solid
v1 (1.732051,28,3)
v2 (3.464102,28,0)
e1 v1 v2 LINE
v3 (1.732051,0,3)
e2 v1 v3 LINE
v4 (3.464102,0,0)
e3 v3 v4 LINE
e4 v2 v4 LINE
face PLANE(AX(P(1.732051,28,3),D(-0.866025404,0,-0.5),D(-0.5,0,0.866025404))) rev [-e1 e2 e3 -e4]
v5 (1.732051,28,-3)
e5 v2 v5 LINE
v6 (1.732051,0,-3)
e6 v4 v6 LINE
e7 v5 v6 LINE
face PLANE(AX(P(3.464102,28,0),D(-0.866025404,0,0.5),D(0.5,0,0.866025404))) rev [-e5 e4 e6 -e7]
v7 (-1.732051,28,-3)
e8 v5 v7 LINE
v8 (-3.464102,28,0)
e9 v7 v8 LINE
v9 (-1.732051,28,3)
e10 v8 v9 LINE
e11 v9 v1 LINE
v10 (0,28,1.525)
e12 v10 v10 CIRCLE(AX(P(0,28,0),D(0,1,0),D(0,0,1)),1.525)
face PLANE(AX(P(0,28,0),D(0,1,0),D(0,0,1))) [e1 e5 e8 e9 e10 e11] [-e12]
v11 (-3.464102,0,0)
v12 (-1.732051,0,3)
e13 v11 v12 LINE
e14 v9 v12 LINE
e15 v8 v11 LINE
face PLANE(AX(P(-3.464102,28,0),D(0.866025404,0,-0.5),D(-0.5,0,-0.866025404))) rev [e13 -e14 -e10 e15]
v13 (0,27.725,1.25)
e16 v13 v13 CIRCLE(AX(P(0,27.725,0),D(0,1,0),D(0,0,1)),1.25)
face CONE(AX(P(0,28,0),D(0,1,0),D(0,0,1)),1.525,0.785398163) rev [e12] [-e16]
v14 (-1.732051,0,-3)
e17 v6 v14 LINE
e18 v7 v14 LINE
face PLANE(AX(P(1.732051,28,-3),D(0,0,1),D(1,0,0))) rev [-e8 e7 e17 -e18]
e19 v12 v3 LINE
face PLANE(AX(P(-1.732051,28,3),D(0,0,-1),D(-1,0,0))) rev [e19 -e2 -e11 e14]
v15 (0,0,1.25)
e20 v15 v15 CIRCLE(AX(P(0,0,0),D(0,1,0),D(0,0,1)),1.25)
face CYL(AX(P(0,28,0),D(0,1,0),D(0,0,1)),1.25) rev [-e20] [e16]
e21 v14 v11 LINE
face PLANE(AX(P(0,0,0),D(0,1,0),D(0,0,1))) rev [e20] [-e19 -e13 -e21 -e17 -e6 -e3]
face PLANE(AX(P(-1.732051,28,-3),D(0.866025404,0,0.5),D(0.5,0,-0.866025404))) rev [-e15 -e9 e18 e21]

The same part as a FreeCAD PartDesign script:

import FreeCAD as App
import Part
import Sketcher
from FreeCAD import Vector
Q = App.Units.Quantity

doc = App.newDocument("Part")
body = doc.addObject("PartDesign::Body", "Body")

sketch1 = body.newObject("Sketcher::SketchObject", "Sketch")
sketch1.AttachmentSupport = (doc.getObject("XZ_Plane"), [""])
sketch1.MapMode = "FlatFace"
sketch1.addGeometry(Part.LineSegment(Vector(3.464102, 0, 0), Vector(1.732051, -3, 0)), False)
sketch1.addGeometry(Part.LineSegment(Vector(1.732051, -3, 0), Vector(-1.732051, -3, 0)), False)
sketch1.addGeometry(Part.LineSegment(Vector(-1.732051, -3, 0), Vector(-3.464102, 0, 0)), False)
sketch1.addGeometry(Part.LineSegment(Vector(-3.464102, 0, 0), Vector(-1.732051, 3, 0)), False)
sketch1.addGeometry(Part.LineSegment(Vector(-1.732051, 3, 0), Vector(1.732051, 3, 0)), False)
sketch1.addGeometry(Part.LineSegment(Vector(1.732051, 3, 0), Vector(3.464102, 0, 0)), False)
sketch1.addConstraint(Sketcher.Constraint("Coincident", 0, 2, 1, 1))
sketch1.addConstraint(Sketcher.Constraint("Coincident", 1, 2, 2, 1))
sketch1.addConstraint(Sketcher.Constraint("Coincident", 2, 2, 3, 1))
sketch1.addConstraint(Sketcher.Constraint("Coincident", 3, 2, 4, 1))
sketch1.addConstraint(Sketcher.Constraint("Coincident", 4, 2, 5, 1))
sketch1.addConstraint(Sketcher.Constraint("Coincident", 5, 2, 0, 1))
sketch1.addConstraint(Sketcher.Constraint("Horizontal", 1))
sketch1.addConstraint(Sketcher.Constraint("Horizontal", 4))
sketch1.addConstraint(Sketcher.Constraint("Symmetric", 0, 2, 3, 2, -1, 1))
sketch1.addConstraint(Sketcher.Constraint("Symmetric", 2, 2, 5, 2, -1, 1))
sketch1.addConstraint(Sketcher.Constraint("PointOnObject", 2, 2, -1))
sketch1.addConstraint(Sketcher.Constraint("Parallel", 2, 5))
sketch1.addConstraint(Sketcher.Constraint("Vertical", 1, 2, 3, 2))
sketch1.addConstraint(Sketcher.Constraint("Angle", 0, Q("-120 deg")))
sketch1.addConstraint(Sketcher.Constraint("DistanceY", 0, 2, -1, 1, Q("3 mm")))
sketch1.addConstraint(Sketcher.Constraint("DistanceX", 1, 2, 1, 1, Q("3.464102 mm")))
pad1 = body.newObject("PartDesign::Pad", "Pad")
pad1.Profile = sketch1
pad1.Length = 28
pad1.Reversed = True

sketch2 = body.newObject("Sketcher::SketchObject", "Sketch001")
sketch2.AttachmentSupport = (doc.getObject("XZ_Plane"), [""])
sketch2.MapMode = "FlatFace"
sketch2.AttachmentOffset = App.Placement(Vector(0, 0, -28), App.Rotation())
sketch2.addGeometry(Part.Circle(Vector(0, 0, 0), Vector(0, 0, 1), 1.25), False)
sketch2.addConstraint(Sketcher.Constraint("Coincident", 0, 3, -1, 1))
sketch2.addConstraint(Sketcher.Constraint("Diameter", 0, Q("2.5 mm")))
doc.recompute()
hole = body.newObject("PartDesign::Hole", "Hole")
hole.Profile = sketch2
hole.ThreadType = "None"
hole.Diameter = 2.5
hole.DepthType = "ThroughAll"
hole.HoleCutType = "Countersink"
hole.HoleCutDiameter = 3.05
hole.HoleCutCountersinkAngle = 90
hole.Reversed = True

doc.recompute()
